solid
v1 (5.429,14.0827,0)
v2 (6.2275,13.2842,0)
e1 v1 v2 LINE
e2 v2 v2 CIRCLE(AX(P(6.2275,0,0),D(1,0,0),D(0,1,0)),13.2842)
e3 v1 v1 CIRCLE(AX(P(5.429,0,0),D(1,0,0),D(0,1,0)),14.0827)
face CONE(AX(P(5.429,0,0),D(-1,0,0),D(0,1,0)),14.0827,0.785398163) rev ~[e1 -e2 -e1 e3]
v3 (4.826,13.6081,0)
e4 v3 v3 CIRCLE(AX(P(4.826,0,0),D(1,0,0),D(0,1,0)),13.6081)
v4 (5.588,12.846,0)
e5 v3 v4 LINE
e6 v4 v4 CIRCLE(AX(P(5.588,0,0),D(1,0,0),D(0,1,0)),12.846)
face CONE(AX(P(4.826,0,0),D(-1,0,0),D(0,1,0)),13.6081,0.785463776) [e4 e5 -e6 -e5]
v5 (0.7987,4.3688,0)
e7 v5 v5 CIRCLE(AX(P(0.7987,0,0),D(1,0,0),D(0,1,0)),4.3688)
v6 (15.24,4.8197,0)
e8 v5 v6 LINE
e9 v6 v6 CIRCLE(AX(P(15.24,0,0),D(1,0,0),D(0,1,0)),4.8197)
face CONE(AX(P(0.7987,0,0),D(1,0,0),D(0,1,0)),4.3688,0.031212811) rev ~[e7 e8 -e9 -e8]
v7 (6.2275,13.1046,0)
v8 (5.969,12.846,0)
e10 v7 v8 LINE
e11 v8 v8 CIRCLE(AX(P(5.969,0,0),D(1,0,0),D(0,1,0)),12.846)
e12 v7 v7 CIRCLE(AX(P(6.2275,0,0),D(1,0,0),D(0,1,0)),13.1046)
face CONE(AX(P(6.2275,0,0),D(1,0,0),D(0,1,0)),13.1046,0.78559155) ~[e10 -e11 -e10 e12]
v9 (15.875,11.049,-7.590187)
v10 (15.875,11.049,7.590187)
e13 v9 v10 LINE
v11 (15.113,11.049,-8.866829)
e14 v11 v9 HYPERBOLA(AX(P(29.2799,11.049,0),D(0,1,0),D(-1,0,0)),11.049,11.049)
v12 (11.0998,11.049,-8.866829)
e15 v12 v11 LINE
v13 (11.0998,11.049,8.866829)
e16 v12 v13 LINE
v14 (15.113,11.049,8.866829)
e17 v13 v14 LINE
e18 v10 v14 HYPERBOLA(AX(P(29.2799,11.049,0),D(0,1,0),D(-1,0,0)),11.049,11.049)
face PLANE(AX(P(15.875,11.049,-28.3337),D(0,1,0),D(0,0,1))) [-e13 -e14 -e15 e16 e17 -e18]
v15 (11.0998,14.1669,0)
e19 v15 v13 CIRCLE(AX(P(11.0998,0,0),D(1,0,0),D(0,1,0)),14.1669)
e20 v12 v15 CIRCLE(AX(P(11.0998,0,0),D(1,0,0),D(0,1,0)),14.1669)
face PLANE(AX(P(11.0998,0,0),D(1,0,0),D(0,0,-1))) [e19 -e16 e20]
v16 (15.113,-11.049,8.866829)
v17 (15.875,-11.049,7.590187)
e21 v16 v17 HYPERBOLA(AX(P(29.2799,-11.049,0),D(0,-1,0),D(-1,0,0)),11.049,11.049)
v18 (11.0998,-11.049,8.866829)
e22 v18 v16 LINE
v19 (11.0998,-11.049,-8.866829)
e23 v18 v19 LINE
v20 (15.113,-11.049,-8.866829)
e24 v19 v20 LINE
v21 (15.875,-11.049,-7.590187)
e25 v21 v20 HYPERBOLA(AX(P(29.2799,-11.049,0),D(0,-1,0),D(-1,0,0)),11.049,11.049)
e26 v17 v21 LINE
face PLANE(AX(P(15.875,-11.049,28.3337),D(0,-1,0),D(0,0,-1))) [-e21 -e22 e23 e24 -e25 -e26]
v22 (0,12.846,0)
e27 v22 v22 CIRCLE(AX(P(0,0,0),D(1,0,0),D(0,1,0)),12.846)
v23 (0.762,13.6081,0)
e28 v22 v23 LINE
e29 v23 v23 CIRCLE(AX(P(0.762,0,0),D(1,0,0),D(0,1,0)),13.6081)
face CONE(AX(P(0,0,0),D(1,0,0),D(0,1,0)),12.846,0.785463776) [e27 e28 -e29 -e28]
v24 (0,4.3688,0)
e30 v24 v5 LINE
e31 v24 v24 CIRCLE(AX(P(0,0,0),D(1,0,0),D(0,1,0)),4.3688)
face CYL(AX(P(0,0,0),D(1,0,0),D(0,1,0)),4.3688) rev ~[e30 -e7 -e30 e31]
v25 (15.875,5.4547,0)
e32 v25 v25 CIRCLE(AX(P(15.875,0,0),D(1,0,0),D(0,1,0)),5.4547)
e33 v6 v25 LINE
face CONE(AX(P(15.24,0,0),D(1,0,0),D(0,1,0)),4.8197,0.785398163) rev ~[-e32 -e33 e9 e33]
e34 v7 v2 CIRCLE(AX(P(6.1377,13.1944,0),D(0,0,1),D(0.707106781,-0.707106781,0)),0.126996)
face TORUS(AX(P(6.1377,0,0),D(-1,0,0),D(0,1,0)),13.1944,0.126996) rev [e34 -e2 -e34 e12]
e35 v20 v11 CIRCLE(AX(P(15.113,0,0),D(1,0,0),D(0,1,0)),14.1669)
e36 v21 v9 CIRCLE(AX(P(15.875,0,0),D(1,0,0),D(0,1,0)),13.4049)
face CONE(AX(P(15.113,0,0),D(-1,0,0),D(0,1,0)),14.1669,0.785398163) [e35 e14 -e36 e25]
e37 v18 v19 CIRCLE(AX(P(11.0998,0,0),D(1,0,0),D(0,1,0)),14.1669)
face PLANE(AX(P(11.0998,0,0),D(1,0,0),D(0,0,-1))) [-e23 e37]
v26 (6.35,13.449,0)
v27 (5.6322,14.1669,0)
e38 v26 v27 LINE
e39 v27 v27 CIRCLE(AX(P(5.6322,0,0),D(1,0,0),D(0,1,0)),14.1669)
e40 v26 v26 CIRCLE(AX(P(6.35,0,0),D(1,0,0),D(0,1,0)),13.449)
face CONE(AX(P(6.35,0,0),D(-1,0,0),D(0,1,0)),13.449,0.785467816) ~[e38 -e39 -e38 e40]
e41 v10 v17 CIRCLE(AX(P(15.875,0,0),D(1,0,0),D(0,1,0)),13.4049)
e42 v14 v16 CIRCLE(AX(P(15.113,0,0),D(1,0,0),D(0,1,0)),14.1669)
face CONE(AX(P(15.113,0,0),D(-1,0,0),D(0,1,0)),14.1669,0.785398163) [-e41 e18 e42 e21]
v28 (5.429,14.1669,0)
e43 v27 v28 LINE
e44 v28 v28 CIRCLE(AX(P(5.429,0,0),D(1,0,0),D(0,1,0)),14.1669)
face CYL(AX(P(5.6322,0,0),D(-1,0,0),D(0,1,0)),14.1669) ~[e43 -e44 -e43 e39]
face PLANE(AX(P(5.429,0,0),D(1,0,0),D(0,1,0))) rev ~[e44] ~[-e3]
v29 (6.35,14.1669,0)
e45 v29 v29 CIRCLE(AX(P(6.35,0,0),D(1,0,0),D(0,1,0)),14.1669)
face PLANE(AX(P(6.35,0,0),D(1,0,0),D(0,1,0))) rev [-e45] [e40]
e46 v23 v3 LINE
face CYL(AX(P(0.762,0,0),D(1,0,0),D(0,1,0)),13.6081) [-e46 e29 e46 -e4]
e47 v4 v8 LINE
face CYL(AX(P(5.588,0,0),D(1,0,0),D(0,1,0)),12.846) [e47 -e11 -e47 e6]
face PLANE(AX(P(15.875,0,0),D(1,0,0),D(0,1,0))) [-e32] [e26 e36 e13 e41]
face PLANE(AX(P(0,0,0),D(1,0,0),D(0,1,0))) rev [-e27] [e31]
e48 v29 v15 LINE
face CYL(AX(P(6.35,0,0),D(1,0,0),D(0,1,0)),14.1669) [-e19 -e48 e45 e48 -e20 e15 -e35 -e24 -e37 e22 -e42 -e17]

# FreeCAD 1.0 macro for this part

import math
import FreeCAD as App
import Part
import Sketcher

V = App.Vector
Q = App.Units.Quantity

doc = App.newDocument("Part")
params = doc.addObject("Spreadsheet::Sheet", "Params")
for row, (alias, value) in enumerate([
    ("sketch1_width", "0.03 in"),
    ("sketch1_width2", "0.16 in"),
    ("sketch1_width3", "0.625 in"),
    ("sketch1_width4", "0.345 in"),
    ("sketch1_height", "0.052 in"),
    ("revolution_angle", "360 deg"),
    ("sketch2_width", "0.625 in"),
    ("sketch2_height", "0.172 in"),
    ("groove_angle", "360 deg"),
    ("sketch3_width", "0.87 in"),
    ("sketch3_width2", "2.231 in"),
    ("sketch3_height", "4.462 in"),
    ("pocket1_length", "0.188 in"),
    ("sketch4_radius", "0.005 in"),
    ("sketch4_width", "0.03 in"),
    ("sketch4_height", "0.01 in"),
    ("sketch4_width2", "0.008 in"),
    ("sketch4_width3", "0.015 in"),
    ("revolution2_angle", "360 deg"),
], start=1):
    params.set(f"A{row}", alias)
    params.set(f"B{row}", "=" + value)
    params.setAlias(f"B{row}", alias)

body = doc.addObject("PartDesign::Body", "Body")

sketch1 = body.newObject("Sketcher::SketchObject", "Sketch")
sketch1.AttachmentSupport = (doc.getObject("XY_Plane"), [""])
sketch1.MapMode = "FlatFace"
sketch1.addGeometry(Part.LineSegment(V(0, 0, 0), V(15.9, 0, 0)), False)
sketch1.addGeometry(Part.LineSegment(V(15.9, 0, 0), V(15.9, 13.4, 0)), False)
sketch1.addGeometry(Part.LineSegment(V(15.9, 13.4, 0), V(15.1, 14.2, 0)), False)
sketch1.addGeometry(Part.LineSegment(V(15.1, 14.2, 0), V(6.3, 14.2, 0)), False)
sketch1.addGeometry(Part.LineSegment(V(6.3, 14.2, 0), V(6.3, 12.8, 0)), False)
sketch1.addGeometry(Part.LineSegment(V(6.3, 12.8, 0), V(5.6, 12.8, 0)), False)
sketch1.addGeometry(Part.LineSegment(V(5.6, 12.8, 0), V(4.8, 13.6, 0)), False)
sketch1.addGeometry(Part.LineSegment(V(4.8, 13.6, 0), V(0.8, 13.6, 0)), False)
sketch1.addGeometry(Part.LineSegment(V(0.8, 13.6, 0), V(0, 12.8, 0)), False)
sketch1.addGeometry(Part.LineSegment(V(0, 12.8, 0), V(0, 0, 0)), False)
sketch1.addConstraint(Sketcher.Constraint("Coincident", 0, 2, 1, 1))
sketch1.addConstraint(Sketcher.Constraint("Coincident", 1, 2, 2, 1))
sketch1.addConstraint(Sketcher.Constraint("Coincident", 2, 2, 3, 1))
sketch1.addConstraint(Sketcher.Constraint("Coincident", 3, 2, 4, 1))
sketch1.addConstraint(Sketcher.Constraint("Coincident", 4, 2, 5, 1))
sketch1.addConstraint(Sketcher.Constraint("Coincident", 5, 2, 6, 1))
sketch1.addConstraint(Sketcher.Constraint("Coincident", 6, 2, 7, 1))
sketch1.addConstraint(Sketcher.Constraint("Coincident", 7, 2, 8, 1))
sketch1.addConstraint(Sketcher.Constraint("Coincident", 8, 2, 9, 1))
sketch1.addConstraint(Sketcher.Constraint("Coincident", 9, 2, 0, 1))
sketch1.addConstraint(Sketcher.Constraint("Horizontal", 0))
sketch1.addConstraint(Sketcher.Constraint("Vertical", 1))
sketch1.addConstraint(Sketcher.Constraint("Horizontal", 3))
sketch1.addConstraint(Sketcher.Constraint("Vertical", 4))
sketch1.addConstraint(Sketcher.Constraint("Horizontal", 5))
sketch1.addConstraint(Sketcher.Constraint("Horizontal", 7))
sketch1.addConstraint(Sketcher.Constraint("Vertical", 9))
sketch1.addConstraint(Sketcher.Constraint("Coincident", 9, 2, -1, 1))
sketch1.addConstraint(Sketcher.Constraint("Parallel", 2, 6))
sketch1.addConstraint(Sketcher.Constraint("Perpendicular", 6, 8))
sketch1.addConstraint(Sketcher.Constraint("Horizontal", 5, 2, 8, 2))
sketch1.addConstraint(Sketcher.Constraint("Equal", 2, 6))
sketch1.addConstraint(Sketcher.Constraint("Equal", 6, 8))
sketch1.addConstraint(Sketcher.Constraint("DistanceX", 5, 2, 5, 1, Q("0.03 in")))
sketch1.addConstraint(Sketcher.Constraint("DistanceX", 7, 2, 7, 1, Q("0.16 in")))
sketch1.addConstraint(Sketcher.Constraint("DistanceX", 0, 1, 0, 2, Q("0.625 in")))
sketch1.addConstraint(Sketcher.Constraint("DistanceX", 3, 2, 3, 1, Q("0.345 in")))
sketch1.addConstraint(Sketcher.Constraint("DistanceY", 4, 2, 4, 1, Q("0.052 in")))
sketch1.addConstraint(Sketcher.Constraint("DistanceY", 1, 1, 1, 2, 13.405))
sketch1.setExpression("Constraints[23]", "Params.sketch1_width")
sketch1.setExpression("Constraints[24]", "Params.sketch1_width2")
sketch1.setExpression("Constraints[25]", "Params.sketch1_width3")
sketch1.setExpression("Constraints[26]", "Params.sketch1_width4")
sketch1.setExpression("Constraints[27]", "Params.sketch1_height")
revolution = body.newObject("PartDesign::Revolution", "Revolution")
revolution.Profile = sketch1
revolution.ReferenceAxis = (sketch1, ["H_Axis"])
revolution.setExpression("Angle", "Params.revolution_angle")

sketch2 = body.newObject("Sketcher::SketchObject", "Sketch001")
sketch2.AttachmentSupport = (doc.getObject("XY_Plane"), [""])
sketch2.MapMode = "FlatFace"
sketch2.addGeometry(Part.LineSegment(V(0, 0, 0), V(15.9, 0, 0)), False)
sketch2.addGeometry(Part.LineSegment(V(15.9, 0, 0), V(15.9, 5.5, 0)), False)
sketch2.addGeometry(Part.LineSegment(V(15.9, 5.5, 0), V(15.2, 4.8, 0)), False)
sketch2.addGeometry(Part.LineSegment(V(15.2, 4.8, 0), V(0.8, 4.4, 0)), False)
sketch2.addGeometry(Part.LineSegment(V(0.8, 4.4, 0), V(0, 4.4, 0)), False)
sketch2.addGeometry(Part.LineSegment(V(0, 4.4, 0), V(0, 0, 0)), False)
sketch2.addConstraint(Sketcher.Constraint("Coincident", 0, 2, 1, 1))
sketch2.addConstraint(Sketcher.Constraint("Coincident", 1, 2, 2, 1))
sketch2.addConstraint(Sketcher.Constraint("Coincident", 2, 2, 3, 1))
sketch2.addConstraint(Sketcher.Constraint("Coincident", 3, 2, 4, 1))
sketch2.addConstraint(Sketcher.Constraint("Coincident", 4, 2, 5, 1))
sketch2.addConstraint(Sketcher.Constraint("Coincident", 5, 2, 0, 1))
sketch2.addConstraint(Sketcher.Constraint("Horizontal", 0))
sketch2.addConstraint(Sketcher.Constraint("Vertical", 1))
sketch2.addConstraint(Sketcher.Constraint("Horizontal", 4))
sketch2.addConstraint(Sketcher.Constraint("Vertical", 5))
sketch2.addConstraint(Sketcher.Constraint("Coincident", 5, 2, -1, 1))
sketch2.addConstraint(Sketcher.Constraint("Angle", 2, Q("-135 deg")))
sketch2.addConstraint(Sketcher.Constraint("DistanceX", -1, 1, 2, 2, Q("0.6 in")))
sketch2.addConstraint(Sketcher.Constraint("DistanceX", 0, 1, 0, 2, Q("0.625 in")))
sketch2.addConstraint(Sketcher.Constraint("DistanceY", 5, 2, 5, 1, Q("0.172 in")))
sketch2.addConstraint(Sketcher.Constraint("DistanceX", 4, 2, 4, 1, 0.7987))
sketch2.addConstraint(Sketcher.Constraint("DistanceY", 1, 1, 1, 2, 5.4547))
sketch2.setExpression("Constraints[13]", "Params.sketch2_width")
sketch2.setExpression("Constraints[14]", "Params.sketch2_height")
groove = body.newObject("PartDesign::Groove", "Groove")
groove.Profile = sketch2
groove.ReferenceAxis = (sketch2, ["H_Axis"])
groove.setExpression("Angle", "Params.groove_angle")

sketch3 = body.newObject("Sketcher::SketchObject", "Sketch002")
sketch3.AttachmentSupport = (doc.getObject("YZ_Plane"), [""])
sketch3.MapMode = "FlatFace"
sketch3.AttachmentOffset = App.Placement(V(0, 0, 0.625 * 25.4), App.Rotation())
sketch3.addGeometry(Part.LineSegment(V(28, 57, 0), V(-28, 57, 0)), False)
sketch3.addGeometry(Part.LineSegment(V(-28, 57, 0), V(-28, -57, 0)), False)
sketch3.addGeometry(Part.LineSegment(V(-28, -57, 0), V(28, -57, 0)), False)
sketch3.addGeometry(Part.LineSegment(V(28, -57, 0), V(28, 57, 0)), False)
sketch3.addGeometry(Part.LineSegment(V(-11, -28, 0), V(-11, 28, 0)), False)
sketch3.addGeometry(Part.LineSegment(V(-11, 28, 0), V(11, 28, 0)), False)
sketch3.addGeometry(Part.LineSegment(V(11, 28, 0), V(11, -28, 0)), False)
sketch3.addGeometry(Part.LineSegment(V(11, -28, 0), V(-11, -28, 0)), False)
sketch3.addConstraint(Sketcher.Constraint("Coincident", 0, 2, 1, 1))
sketch3.addConstraint(Sketcher.Constraint("Coincident", 1, 2, 2, 1))
sketch3.addConstraint(Sketcher.Constraint("Coincident", 2, 2, 3, 1))
sketch3.addConstraint(Sketcher.Constraint("Coincident", 3, 2, 0, 1))
sketch3.addConstraint(Sketcher.Constraint("Coincident", 4, 2, 5, 1))
sketch3.addConstraint(Sketcher.Constraint("Coincident", 5, 2, 6, 1))
sketch3.addConstraint(Sketcher.Constraint("Coincident", 6, 2, 7, 1))
sketch3.addConstraint(Sketcher.Constraint("Coincident", 7, 2, 4, 1))
sketch3.addConstraint(Sketcher.Constraint("Horizontal", 0))
sketch3.addConstraint(Sketcher.Constraint("Vertical", 1))
sketch3.addConstraint(Sketcher.Constraint("Horizontal", 2))
sketch3.addConstraint(Sketcher.Constraint("Vertical", 3))
sketch3.addConstraint(Sketcher.Constraint("Vertical", 4))
sketch3.addConstraint(Sketcher.Constraint("Horizontal", 5))
sketch3.addConstraint(Sketcher.Constraint("Vertical", 6))
sketch3.addConstraint(Sketcher.Constraint("Horizontal", 7))
sketch3.addConstraint(Sketcher.Constraint("Symmetric", 0, 2, 2, 2, -1, 1))
sketch3.addConstraint(Sketcher.Constraint("Symmetric", 4, 2, 6, 2, -1, 1))
sketch3.addConstraint(Sketcher.Constraint("Equal", 2, 4))
sketch3.addConstraint(Sketcher.Constraint("DistanceX", 5, 1, 5, 2, Q("0.87 in")))
sketch3.addConstraint(Sketcher.Constraint("DistanceX", 0, 2, 0, 1, Q("2.231 in")))
sketch3.addConstraint(Sketcher.Constraint("DistanceY", 1, 2, 1, 1, Q("4.462 in")))
sketch3.setExpression("Constraints[19]", "Params.sketch3_width")
sketch3.setExpression("Constraints[20]", "Params.sketch3_width2")
sketch3.setExpression("Constraints[21]", "Params.sketch3_height")
pocket1 = body.newObject("PartDesign::Pocket", "Pocket")
pocket1.Profile = sketch3
pocket1.setExpression("Length", "Params.pocket1_length")

sketch4 = body.newObject("Sketcher::SketchObject", "Sketch003")
sketch4.AttachmentSupport = (doc.getObject("XY_Plane"), [""])
sketch4.MapMode = "FlatFace"
sketch4.addGeometry(Part.LineSegment(V(5.63, 14.17, 0), V(5.43, 14.17, 0)), False)
sketch4.addGeometry(Part.LineSegment(V(5.43, 14.17, 0), V(5.43, 14.08, 0)), False)
sketch4.addGeometry(Part.LineSegment(V(5.43, 14.08, 0), V(6.23, 13.28, 0)), False)
sketch4.addGeometry(Part.ArcOfCircle(Part.Circle(V(6.14, 13.19, 0), V(0, 0, 1), 0.13), math.radians(-45), math.radians(45)), False)
sketch4.addGeometry(Part.LineSegment(V(6.23, 13.1, 0), V(5.97, 12.85, 0)), False)
sketch4.addGeometry(Part.LineSegment(V(5.97, 12.85, 0), V(5.59, 12.85, 0)), False)
sketch4.addGeometry(Part.LineSegment(V(5.59, 12.85, 0), V(5.59, 12.59, 0)), False)
sketch4.addGeometry(Part.LineSegment(V(5.59, 12.59, 0), V(6.35, 12.59, 0)), False)
sketch4.addGeometry(Part.LineSegment(V(6.35, 12.59, 0), V(6.35, 13.45, 0)), False)
sketch4.addGeometry(Part.LineSegment(V(6.35, 13.45, 0), V(5.63, 14.17, 0)), False)
sketch4.addConstraint(Sketcher.Constraint("Coincident", 0, 2, 1, 1))
sketch4.addConstraint(Sketcher.Constraint("Coincident", 1, 2, 2, 1))
sketch4.addConstraint(Sketcher.Constraint("Tangent", 2, 2, 3, 2))
sketch4.addConstraint(Sketcher.Constraint("Tangent", 3, 1, 4, 1))
sketch4.addConstraint(Sketcher.Constraint("Coincident", 4, 2, 5, 1))
sketch4.addConstraint(Sketcher.Constraint("Coincident", 5, 2, 6, 1))
sketch4.addConstraint(Sketcher.Constraint("Coincident", 6, 2, 7, 1))
sketch4.addConstraint(Sketcher.Constraint("Coincident", 7, 2, 8, 1))
sketch4.addConstraint(Sketcher.Constraint("Coincident", 8, 2, 9, 1))
sketch4.addConstraint(Sketcher.Constraint("Coincident", 9, 2, 0, 1))
sketch4.addConstraint(Sketcher.Constraint("Horizontal", 0))
sketch4.addConstraint(Sketcher.Constraint("Vertical", 1))
sketch4.addConstraint(Sketcher.Constraint("Horizontal", 5))
sketch4.addConstraint(Sketcher.Constraint("Vertical", 6))
sketch4.addConstraint(Sketcher.Constraint("Horizontal", 7))
sketch4.addConstraint(Sketcher.Constraint("Vertical", 8))
sketch4.addConstraint(Sketcher.Constraint("Perpendicular", 2, 4))
sketch4.addConstraint(Sketcher.Constraint("Perpendicular", 4, 9))
sketch4.addConstraint(Sketcher.Constraint("Vertical", 2, 2, 3, 1))
sketch4.addConstraint(Sketcher.Constraint("Radius", 3, Q("0.005 in")))
sketch4.addConstraint(Sketcher.Constraint("DistanceX", 7, 1, 7, 2, Q("0.03 in")))
sketch4.addConstraint(Sketcher.Constraint("DistanceY", 6, 2, 6, 1, Q("0.01 in")))
sketch4.addConstraint(Sketcher.Constraint("DistanceX", 0, 2, 0, 1, Q("0.008 in")))
sketch4.addConstraint(Sketcher.Constraint("DistanceX", 5, 2, 5, 1, Q("0.015 in")))
sketch4.addConstraint(Sketcher.Constraint("DistanceX", -1, 1, 5, 2, Q("0.22 in")))
sketch4.addConstraint(Sketcher.Constraint("DistanceY", -1, 1, 2, 2, Q("0.523 in")))
sketch4.addConstraint(Sketcher.Constraint("DistanceY", 4, 2, 0, 2, Q("0.052 in")))
sketch4.addConstraint(Sketcher.Constraint("Distance", 4, Q("0.0144 in")))
sketch4.addConstraint(Sketcher.Constraint("DistanceY", 1, 2, 1, 1, 0.0842))
sketch4.setExpression("Constraints[19]", "Params.sketch4_radius")
sketch4.setExpression("Constraints[20]", "Params.sketch4_width")
sketch4.setExpression("Constraints[21]", "Params.sketch4_height")
sketch4.setExpression("Constraints[22]", "Params.sketch4_width2")
sketch4.setExpression("Constraints[23]", "Params.sketch4_width3")
revolution2 = body.newObject("PartDesign::Revolution", "Revolution001")
revolution2.Profile = sketch4
revolution2.ReferenceAxis = (sketch4, ["H_Axis"])
revolution2.setExpression("Angle", "Params.revolution2_angle")

doc.recompute()
